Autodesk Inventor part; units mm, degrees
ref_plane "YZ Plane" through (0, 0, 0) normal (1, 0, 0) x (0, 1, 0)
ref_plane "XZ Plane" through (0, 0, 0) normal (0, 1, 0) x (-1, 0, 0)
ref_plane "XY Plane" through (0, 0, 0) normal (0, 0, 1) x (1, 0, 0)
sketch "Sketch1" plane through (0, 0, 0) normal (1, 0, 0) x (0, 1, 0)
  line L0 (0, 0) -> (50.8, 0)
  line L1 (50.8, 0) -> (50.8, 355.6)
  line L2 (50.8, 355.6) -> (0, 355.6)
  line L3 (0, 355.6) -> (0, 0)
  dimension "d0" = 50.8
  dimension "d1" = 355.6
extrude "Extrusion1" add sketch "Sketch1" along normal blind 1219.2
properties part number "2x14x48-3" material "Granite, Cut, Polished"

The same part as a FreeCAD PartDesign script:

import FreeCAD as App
import Part
import Sketcher
Q = App.Units.Quantity

doc = App.newDocument("Part")
body = doc.addObject("PartDesign::Body", "Body")

sketch1 = doc.addObject("Sketcher::SketchObject", "Sketch")
body.addObject(sketch1)
sketch1.AttachmentSupport = (doc.YZ_Plane, [""])
sketch1.MapMode = "FlatFace"
sketch1.addGeometry([
    Part.LineSegment(App.Vector(0, 356, 0), App.Vector(0, 0, 0)),
    Part.LineSegment(App.Vector(0, 0, 0), App.Vector(51, 0, 0)),
    Part.LineSegment(App.Vector(51, 0, 0), App.Vector(51, 356, 0)),
    Part.LineSegment(App.Vector(51, 356, 0), App.Vector(0, 356, 0)),
], False)
sketch1.addConstraint([
    Sketcher.Constraint("Coincident", 0, 2, 1, 1),
    Sketcher.Constraint("Coincident", 1, 2, 2, 1),
    Sketcher.Constraint("Coincident", 2, 2, 3, 1),
    Sketcher.Constraint("Coincident", 3, 2, 0, 1),
    Sketcher.Constraint("Vertical", 0),
    Sketcher.Constraint("Horizontal", 1),
    Sketcher.Constraint("Vertical", 2),
    Sketcher.Constraint("Horizontal", 3),
    Sketcher.Constraint("Coincident", 0, 2, -1, 1),
    Sketcher.Constraint("DistanceX", 1, 1, 1, 2, Q("2 in")),
    Sketcher.Constraint("DistanceY", 0, 2, 0, 1, Q("14 in")),
])
pad1 = doc.addObject("PartDesign::Pad", "Pad")
body.addObject(pad1)
pad1.Profile = sketch1
pad1.Length = Q("48 in")

doc.recompute()
